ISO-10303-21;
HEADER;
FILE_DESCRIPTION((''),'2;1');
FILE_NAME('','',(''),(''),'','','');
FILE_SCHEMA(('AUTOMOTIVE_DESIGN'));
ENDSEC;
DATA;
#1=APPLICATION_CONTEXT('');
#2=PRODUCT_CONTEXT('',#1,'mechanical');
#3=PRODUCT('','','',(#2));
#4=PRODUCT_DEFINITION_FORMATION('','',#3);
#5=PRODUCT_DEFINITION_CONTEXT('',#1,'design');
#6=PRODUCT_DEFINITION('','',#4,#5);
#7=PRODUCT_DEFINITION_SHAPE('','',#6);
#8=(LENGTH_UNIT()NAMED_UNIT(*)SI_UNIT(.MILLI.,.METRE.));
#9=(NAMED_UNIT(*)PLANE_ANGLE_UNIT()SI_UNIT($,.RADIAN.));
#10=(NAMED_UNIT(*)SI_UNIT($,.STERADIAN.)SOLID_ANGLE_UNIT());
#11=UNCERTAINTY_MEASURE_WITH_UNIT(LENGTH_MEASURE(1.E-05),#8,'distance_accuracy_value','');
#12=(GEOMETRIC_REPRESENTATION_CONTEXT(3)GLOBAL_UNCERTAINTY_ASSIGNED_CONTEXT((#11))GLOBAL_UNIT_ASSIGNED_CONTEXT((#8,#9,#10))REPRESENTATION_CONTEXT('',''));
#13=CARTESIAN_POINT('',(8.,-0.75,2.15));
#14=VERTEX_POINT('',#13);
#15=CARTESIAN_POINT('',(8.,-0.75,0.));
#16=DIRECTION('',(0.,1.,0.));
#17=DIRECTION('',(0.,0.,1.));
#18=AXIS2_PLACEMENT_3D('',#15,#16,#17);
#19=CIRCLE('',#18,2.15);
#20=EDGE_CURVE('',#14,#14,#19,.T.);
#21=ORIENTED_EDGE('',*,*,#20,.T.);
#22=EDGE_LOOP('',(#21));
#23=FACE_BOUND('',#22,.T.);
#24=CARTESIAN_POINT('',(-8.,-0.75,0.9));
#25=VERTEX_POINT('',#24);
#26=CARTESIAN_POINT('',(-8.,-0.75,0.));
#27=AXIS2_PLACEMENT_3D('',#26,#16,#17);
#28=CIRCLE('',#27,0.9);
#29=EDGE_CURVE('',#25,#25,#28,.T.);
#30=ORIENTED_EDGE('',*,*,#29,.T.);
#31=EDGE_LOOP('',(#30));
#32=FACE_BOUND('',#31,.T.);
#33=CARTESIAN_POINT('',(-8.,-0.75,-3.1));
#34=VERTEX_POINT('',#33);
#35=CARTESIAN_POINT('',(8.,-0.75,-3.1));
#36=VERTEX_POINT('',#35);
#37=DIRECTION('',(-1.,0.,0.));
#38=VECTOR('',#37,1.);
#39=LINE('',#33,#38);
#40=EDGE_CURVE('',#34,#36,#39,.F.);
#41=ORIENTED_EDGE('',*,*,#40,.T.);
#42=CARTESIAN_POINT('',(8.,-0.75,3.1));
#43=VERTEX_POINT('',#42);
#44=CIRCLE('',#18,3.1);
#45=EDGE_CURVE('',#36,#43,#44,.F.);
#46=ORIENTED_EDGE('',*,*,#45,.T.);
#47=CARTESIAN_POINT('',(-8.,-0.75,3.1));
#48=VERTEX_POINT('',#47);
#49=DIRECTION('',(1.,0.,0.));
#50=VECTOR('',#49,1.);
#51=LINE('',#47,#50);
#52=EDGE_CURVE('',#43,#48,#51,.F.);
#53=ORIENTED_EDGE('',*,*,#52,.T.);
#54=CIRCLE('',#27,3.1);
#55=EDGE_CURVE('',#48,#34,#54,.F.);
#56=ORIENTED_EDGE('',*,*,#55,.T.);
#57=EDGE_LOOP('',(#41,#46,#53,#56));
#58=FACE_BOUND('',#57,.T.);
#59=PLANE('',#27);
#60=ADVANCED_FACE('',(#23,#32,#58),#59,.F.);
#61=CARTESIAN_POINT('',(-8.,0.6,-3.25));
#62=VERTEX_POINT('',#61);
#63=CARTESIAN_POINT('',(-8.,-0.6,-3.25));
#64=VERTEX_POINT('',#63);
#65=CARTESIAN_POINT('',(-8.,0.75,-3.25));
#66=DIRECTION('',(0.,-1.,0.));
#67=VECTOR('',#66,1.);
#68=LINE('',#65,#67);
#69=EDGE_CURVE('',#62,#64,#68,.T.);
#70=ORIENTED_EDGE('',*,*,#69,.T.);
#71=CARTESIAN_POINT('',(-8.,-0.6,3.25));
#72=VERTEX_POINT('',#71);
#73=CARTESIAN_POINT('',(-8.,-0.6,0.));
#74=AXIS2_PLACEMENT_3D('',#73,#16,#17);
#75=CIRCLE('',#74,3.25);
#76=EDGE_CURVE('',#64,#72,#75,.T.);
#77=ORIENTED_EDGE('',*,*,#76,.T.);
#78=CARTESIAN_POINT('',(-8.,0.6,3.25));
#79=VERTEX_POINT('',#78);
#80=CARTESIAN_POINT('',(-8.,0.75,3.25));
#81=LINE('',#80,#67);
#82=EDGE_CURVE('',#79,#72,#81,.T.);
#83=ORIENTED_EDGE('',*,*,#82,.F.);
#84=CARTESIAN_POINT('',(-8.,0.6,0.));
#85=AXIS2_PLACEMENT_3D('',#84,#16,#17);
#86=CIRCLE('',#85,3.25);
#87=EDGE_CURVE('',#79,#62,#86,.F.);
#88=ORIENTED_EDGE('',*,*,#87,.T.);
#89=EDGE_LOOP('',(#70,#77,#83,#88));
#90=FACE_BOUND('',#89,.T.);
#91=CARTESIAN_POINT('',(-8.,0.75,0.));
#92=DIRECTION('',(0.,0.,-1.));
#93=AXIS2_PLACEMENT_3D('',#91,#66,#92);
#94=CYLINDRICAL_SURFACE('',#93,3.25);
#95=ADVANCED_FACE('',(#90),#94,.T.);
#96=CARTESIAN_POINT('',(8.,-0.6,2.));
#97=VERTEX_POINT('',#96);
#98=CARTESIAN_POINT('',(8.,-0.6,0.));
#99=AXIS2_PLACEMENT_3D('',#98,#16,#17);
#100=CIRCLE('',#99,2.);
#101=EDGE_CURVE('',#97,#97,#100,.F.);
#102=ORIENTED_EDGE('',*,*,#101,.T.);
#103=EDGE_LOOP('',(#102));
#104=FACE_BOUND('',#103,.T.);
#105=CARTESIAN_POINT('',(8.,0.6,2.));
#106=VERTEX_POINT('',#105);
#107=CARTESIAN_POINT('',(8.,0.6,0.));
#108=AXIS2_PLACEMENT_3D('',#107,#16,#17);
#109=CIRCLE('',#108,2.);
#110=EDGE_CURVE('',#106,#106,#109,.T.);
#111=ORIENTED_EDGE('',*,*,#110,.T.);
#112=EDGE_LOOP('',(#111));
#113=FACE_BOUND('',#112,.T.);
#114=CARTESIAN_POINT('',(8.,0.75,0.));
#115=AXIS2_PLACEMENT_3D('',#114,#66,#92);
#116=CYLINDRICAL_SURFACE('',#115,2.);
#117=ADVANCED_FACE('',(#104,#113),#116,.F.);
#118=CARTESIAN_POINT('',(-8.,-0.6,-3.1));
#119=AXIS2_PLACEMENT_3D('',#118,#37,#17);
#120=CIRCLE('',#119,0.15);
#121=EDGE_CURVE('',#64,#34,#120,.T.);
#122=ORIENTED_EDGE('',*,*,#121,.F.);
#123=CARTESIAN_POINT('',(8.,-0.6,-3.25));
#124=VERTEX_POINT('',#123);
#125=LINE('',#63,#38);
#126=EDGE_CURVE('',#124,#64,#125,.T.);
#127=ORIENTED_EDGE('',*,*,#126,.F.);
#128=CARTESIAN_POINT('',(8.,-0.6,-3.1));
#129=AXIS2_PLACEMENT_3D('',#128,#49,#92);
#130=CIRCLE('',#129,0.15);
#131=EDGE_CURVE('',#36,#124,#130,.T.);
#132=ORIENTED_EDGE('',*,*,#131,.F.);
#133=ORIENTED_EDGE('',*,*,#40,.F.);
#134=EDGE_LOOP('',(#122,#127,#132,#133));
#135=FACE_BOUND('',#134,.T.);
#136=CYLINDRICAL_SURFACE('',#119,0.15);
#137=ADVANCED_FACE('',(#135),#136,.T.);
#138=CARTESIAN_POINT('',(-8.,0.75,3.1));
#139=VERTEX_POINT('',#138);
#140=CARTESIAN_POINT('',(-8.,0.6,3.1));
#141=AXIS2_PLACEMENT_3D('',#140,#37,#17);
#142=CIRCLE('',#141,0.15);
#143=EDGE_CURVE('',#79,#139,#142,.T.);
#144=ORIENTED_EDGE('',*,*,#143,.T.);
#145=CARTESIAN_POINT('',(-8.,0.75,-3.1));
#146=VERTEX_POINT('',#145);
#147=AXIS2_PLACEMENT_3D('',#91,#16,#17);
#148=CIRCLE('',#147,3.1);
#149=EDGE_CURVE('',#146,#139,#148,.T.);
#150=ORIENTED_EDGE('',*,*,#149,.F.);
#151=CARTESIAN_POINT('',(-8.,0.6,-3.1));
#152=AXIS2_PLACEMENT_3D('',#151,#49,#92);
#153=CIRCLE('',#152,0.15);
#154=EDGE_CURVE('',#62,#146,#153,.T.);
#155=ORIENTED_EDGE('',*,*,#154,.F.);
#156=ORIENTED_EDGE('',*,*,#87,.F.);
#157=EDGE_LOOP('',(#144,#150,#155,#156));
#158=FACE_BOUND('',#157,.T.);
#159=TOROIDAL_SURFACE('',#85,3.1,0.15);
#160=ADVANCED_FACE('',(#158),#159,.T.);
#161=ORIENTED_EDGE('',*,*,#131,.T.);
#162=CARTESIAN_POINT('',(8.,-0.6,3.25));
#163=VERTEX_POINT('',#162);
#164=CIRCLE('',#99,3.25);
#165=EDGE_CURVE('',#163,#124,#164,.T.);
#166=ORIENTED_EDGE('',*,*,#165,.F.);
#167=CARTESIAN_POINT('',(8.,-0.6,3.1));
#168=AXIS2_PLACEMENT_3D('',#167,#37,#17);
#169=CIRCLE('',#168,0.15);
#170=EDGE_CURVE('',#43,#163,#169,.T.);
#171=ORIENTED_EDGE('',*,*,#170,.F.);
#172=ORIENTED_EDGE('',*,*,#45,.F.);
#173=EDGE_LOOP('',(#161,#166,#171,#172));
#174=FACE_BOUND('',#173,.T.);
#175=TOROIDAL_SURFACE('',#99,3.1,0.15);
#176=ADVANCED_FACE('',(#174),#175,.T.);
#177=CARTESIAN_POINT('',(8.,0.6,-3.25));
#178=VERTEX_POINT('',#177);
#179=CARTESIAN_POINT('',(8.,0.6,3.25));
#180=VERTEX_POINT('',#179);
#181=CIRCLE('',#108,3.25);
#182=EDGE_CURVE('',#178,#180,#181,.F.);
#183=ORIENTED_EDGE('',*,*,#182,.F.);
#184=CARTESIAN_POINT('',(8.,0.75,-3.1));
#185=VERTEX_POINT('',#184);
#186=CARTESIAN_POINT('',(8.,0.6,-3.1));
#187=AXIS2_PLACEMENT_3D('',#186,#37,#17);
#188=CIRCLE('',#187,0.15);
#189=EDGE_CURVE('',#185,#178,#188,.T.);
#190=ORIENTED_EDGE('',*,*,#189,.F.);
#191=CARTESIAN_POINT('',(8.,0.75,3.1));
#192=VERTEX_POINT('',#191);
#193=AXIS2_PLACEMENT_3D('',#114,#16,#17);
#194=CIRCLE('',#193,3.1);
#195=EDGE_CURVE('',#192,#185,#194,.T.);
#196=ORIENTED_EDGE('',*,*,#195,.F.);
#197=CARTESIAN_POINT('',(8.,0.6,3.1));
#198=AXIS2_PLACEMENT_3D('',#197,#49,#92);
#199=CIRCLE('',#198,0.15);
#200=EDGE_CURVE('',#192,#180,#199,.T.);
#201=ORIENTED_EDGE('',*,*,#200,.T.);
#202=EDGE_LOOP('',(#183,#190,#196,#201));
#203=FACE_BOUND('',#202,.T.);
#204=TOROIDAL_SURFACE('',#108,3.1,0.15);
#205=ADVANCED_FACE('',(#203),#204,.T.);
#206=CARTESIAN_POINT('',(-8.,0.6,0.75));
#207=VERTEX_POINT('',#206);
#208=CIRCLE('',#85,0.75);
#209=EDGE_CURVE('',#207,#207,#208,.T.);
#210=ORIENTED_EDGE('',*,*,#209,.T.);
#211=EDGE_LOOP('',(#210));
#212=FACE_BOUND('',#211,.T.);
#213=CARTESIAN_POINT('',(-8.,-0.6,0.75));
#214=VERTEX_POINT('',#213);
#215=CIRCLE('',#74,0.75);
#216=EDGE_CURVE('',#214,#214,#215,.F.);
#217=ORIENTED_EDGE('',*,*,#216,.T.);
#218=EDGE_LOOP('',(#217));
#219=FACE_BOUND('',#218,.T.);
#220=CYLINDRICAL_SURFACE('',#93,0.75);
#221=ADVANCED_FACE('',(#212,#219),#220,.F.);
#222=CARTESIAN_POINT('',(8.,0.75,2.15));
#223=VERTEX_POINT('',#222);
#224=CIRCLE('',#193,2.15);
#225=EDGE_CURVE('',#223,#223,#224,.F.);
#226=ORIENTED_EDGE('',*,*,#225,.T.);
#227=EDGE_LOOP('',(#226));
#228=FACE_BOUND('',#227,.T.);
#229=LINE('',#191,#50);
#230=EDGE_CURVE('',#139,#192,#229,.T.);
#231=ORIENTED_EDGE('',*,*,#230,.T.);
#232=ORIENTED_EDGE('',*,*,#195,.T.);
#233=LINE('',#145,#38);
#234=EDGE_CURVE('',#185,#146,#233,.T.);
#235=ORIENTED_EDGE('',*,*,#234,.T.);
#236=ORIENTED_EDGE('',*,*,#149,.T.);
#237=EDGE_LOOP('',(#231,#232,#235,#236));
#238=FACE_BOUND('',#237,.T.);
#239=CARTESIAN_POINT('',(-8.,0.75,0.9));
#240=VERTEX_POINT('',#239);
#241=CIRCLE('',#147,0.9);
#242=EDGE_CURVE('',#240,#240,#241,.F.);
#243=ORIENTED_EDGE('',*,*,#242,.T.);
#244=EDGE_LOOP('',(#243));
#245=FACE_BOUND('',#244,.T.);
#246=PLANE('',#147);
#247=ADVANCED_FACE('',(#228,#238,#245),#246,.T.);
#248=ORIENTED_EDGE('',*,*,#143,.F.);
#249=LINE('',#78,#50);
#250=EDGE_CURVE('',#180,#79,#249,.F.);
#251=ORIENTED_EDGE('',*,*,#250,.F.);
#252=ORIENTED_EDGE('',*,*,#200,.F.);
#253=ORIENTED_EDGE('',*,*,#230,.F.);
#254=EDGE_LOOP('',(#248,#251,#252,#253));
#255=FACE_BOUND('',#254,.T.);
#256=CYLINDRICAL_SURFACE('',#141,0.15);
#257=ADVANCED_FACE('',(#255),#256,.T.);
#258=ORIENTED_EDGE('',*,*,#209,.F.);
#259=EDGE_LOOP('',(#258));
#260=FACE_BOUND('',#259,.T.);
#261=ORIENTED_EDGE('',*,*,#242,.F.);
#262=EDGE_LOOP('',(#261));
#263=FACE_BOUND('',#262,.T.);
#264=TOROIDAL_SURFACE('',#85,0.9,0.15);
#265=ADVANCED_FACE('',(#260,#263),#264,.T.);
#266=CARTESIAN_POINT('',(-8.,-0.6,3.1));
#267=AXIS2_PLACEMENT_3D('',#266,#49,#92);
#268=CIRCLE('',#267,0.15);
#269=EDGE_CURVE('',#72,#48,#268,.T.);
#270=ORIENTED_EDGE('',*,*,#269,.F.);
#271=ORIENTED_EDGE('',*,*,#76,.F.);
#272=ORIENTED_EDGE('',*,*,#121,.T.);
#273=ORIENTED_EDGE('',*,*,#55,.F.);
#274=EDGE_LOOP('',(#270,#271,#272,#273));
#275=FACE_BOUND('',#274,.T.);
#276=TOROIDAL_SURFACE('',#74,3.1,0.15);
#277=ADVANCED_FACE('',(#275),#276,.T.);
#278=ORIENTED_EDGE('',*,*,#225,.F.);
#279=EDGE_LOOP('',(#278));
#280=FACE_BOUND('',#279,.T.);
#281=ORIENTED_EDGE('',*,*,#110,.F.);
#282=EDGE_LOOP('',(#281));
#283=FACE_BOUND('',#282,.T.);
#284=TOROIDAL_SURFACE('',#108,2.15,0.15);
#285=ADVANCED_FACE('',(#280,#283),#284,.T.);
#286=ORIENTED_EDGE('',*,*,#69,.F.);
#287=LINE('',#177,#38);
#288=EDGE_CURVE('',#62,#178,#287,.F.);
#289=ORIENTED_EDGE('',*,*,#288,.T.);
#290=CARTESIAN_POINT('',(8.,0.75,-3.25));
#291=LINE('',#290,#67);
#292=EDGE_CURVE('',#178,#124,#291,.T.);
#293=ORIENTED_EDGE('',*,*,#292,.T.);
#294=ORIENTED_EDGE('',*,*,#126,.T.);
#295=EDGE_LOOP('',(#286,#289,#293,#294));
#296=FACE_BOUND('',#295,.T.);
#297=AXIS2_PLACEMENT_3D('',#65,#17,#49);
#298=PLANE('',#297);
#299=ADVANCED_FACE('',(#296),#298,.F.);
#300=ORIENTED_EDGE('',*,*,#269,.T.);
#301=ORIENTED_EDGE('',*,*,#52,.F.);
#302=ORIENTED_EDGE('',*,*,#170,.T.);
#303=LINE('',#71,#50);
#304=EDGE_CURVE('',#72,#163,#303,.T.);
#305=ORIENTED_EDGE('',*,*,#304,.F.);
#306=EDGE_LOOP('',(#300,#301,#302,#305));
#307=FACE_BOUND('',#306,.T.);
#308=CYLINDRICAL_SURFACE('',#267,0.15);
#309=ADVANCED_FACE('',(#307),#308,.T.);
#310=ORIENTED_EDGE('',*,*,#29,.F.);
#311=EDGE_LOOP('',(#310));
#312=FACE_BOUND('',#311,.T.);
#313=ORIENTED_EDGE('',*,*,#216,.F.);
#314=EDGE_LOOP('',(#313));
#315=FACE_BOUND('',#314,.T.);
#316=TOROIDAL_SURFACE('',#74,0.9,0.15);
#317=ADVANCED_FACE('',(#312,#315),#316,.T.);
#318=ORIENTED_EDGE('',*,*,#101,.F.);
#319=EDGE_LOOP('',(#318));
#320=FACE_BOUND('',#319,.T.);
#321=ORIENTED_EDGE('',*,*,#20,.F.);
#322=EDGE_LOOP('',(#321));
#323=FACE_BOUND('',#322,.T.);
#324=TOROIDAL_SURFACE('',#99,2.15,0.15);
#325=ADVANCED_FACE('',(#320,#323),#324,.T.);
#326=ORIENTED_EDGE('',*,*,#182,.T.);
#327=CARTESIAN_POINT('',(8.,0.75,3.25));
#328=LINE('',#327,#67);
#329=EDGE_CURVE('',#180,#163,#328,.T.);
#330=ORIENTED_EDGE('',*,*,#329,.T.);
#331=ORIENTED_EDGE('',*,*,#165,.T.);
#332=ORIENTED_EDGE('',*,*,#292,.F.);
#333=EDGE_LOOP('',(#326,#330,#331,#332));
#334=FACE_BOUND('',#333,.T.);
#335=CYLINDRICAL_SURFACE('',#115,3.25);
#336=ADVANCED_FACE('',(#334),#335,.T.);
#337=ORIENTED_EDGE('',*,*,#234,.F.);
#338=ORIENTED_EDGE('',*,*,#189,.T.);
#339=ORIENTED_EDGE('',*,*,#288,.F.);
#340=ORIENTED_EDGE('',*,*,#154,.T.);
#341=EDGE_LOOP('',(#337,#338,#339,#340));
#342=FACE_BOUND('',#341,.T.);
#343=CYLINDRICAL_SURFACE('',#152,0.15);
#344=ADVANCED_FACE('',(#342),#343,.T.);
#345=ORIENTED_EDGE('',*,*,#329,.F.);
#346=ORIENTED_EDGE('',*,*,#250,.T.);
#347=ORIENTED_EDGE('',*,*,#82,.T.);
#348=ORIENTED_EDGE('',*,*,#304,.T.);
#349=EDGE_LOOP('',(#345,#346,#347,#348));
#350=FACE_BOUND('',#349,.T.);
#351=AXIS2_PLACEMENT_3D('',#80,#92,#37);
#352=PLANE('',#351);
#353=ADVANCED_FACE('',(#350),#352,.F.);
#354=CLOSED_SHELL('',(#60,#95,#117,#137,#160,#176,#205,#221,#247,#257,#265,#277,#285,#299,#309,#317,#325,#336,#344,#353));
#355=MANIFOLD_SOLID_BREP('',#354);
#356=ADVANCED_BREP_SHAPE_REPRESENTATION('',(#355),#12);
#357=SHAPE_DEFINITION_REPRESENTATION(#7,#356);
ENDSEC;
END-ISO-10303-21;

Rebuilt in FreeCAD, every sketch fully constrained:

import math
import FreeCAD as App
import Part
import Sketcher
from FreeCAD import Vector


def edges_at(feature, points):
    """Names of the edges that pass closest to the given points."""
    edges = feature.Shape.Edges
    near = lambda p: min(range(len(edges)), key=lambda i: edges[i].distToShape(Part.Vertex(*p))[0])
    return sorted({f"Edge{near(p) + 1}" for p in points})

doc = App.newDocument("Part")
body = doc.addObject("PartDesign::Body", "Body")

sketch1 = body.newObject("Sketcher::SketchObject", "Sketch")
sketch1.AttachmentSupport = (doc.getObject("XZ_Plane"), [""])
sketch1.MapMode = "FlatFace"
sketch1.addGeometry([
    Part.LineSegment(Vector(8, -3.25, 0), Vector(-8, -3.25, 0)),
    Part.ArcOfCircle(Part.Circle(Vector(-8, 0, 0), Vector(0, 0, 1), 3.25), math.radians(90), math.radians(270)),
    Part.LineSegment(Vector(-8, 3.25, 0), Vector(8, 3.25, 0)),
    Part.ArcOfCircle(Part.Circle(Vector(8, 0, 0), Vector(0, 0, 1), 3.25), math.radians(-90), math.radians(90)),
    Part.Circle(Vector(8, 0, 0), Vector(0, 0, 1), 2),
    Part.Circle(Vector(-8, 0, 0), Vector(0, 0, 1), 0.75),
], False)
sketch1.addConstraint([
    Sketcher.Constraint("Tangent", 0, 2, 1, 2),
    Sketcher.Constraint("Tangent", 1, 1, 2, 1),
    Sketcher.Constraint("Tangent", 2, 2, 3, 2),
    Sketcher.Constraint("Tangent", 3, 1, 0, 1),
    Sketcher.Constraint("Horizontal", 0),
    Sketcher.Constraint("Horizontal", 2),
    Sketcher.Constraint("Coincident", 4, 3, 3, 3),
    Sketcher.Constraint("Coincident", 5, 3, 1, 3),
    Sketcher.Constraint("Symmetric", 1, 3, 3, 3, -1, 1),
    Sketcher.Constraint("Diameter", 4, 4.0),
    Sketcher.Constraint("Diameter", 5, 1.5),
    Sketcher.Constraint("DistanceX", 0, 2, 0, 1, 16.0),
    Sketcher.Constraint("Radius", 1, 3.25),
])
pad1 = body.newObject("PartDesign::Pad", "Pad")
pad1.Profile = sketch1
pad1.Length = 1.5
pad1.Midplane = True
doc.recompute()

fillet = body.newObject("PartDesign::Fillet", "Fillet")
fillet.Base = (pad1, edges_at(pad1, [
    (11.25, 0.75, 0),
    (-8.75, -0.75, 0),
    (-8.75, 0.75, 0),
    (0, 0.75, -3.25),
    (6, -0.75, 0),
    (6, 0.75, 0),
    (-11.25, 0.75, 0),
    (0, -0.75, -3.25),
    (11.25, -0.75, 0),
    (0, -0.75, 3.25),
    (-11.25, -0.75, 0),
    (0, 0.75, 3.25),
]))
fillet.Radius = 0.15

doc.recompute()
